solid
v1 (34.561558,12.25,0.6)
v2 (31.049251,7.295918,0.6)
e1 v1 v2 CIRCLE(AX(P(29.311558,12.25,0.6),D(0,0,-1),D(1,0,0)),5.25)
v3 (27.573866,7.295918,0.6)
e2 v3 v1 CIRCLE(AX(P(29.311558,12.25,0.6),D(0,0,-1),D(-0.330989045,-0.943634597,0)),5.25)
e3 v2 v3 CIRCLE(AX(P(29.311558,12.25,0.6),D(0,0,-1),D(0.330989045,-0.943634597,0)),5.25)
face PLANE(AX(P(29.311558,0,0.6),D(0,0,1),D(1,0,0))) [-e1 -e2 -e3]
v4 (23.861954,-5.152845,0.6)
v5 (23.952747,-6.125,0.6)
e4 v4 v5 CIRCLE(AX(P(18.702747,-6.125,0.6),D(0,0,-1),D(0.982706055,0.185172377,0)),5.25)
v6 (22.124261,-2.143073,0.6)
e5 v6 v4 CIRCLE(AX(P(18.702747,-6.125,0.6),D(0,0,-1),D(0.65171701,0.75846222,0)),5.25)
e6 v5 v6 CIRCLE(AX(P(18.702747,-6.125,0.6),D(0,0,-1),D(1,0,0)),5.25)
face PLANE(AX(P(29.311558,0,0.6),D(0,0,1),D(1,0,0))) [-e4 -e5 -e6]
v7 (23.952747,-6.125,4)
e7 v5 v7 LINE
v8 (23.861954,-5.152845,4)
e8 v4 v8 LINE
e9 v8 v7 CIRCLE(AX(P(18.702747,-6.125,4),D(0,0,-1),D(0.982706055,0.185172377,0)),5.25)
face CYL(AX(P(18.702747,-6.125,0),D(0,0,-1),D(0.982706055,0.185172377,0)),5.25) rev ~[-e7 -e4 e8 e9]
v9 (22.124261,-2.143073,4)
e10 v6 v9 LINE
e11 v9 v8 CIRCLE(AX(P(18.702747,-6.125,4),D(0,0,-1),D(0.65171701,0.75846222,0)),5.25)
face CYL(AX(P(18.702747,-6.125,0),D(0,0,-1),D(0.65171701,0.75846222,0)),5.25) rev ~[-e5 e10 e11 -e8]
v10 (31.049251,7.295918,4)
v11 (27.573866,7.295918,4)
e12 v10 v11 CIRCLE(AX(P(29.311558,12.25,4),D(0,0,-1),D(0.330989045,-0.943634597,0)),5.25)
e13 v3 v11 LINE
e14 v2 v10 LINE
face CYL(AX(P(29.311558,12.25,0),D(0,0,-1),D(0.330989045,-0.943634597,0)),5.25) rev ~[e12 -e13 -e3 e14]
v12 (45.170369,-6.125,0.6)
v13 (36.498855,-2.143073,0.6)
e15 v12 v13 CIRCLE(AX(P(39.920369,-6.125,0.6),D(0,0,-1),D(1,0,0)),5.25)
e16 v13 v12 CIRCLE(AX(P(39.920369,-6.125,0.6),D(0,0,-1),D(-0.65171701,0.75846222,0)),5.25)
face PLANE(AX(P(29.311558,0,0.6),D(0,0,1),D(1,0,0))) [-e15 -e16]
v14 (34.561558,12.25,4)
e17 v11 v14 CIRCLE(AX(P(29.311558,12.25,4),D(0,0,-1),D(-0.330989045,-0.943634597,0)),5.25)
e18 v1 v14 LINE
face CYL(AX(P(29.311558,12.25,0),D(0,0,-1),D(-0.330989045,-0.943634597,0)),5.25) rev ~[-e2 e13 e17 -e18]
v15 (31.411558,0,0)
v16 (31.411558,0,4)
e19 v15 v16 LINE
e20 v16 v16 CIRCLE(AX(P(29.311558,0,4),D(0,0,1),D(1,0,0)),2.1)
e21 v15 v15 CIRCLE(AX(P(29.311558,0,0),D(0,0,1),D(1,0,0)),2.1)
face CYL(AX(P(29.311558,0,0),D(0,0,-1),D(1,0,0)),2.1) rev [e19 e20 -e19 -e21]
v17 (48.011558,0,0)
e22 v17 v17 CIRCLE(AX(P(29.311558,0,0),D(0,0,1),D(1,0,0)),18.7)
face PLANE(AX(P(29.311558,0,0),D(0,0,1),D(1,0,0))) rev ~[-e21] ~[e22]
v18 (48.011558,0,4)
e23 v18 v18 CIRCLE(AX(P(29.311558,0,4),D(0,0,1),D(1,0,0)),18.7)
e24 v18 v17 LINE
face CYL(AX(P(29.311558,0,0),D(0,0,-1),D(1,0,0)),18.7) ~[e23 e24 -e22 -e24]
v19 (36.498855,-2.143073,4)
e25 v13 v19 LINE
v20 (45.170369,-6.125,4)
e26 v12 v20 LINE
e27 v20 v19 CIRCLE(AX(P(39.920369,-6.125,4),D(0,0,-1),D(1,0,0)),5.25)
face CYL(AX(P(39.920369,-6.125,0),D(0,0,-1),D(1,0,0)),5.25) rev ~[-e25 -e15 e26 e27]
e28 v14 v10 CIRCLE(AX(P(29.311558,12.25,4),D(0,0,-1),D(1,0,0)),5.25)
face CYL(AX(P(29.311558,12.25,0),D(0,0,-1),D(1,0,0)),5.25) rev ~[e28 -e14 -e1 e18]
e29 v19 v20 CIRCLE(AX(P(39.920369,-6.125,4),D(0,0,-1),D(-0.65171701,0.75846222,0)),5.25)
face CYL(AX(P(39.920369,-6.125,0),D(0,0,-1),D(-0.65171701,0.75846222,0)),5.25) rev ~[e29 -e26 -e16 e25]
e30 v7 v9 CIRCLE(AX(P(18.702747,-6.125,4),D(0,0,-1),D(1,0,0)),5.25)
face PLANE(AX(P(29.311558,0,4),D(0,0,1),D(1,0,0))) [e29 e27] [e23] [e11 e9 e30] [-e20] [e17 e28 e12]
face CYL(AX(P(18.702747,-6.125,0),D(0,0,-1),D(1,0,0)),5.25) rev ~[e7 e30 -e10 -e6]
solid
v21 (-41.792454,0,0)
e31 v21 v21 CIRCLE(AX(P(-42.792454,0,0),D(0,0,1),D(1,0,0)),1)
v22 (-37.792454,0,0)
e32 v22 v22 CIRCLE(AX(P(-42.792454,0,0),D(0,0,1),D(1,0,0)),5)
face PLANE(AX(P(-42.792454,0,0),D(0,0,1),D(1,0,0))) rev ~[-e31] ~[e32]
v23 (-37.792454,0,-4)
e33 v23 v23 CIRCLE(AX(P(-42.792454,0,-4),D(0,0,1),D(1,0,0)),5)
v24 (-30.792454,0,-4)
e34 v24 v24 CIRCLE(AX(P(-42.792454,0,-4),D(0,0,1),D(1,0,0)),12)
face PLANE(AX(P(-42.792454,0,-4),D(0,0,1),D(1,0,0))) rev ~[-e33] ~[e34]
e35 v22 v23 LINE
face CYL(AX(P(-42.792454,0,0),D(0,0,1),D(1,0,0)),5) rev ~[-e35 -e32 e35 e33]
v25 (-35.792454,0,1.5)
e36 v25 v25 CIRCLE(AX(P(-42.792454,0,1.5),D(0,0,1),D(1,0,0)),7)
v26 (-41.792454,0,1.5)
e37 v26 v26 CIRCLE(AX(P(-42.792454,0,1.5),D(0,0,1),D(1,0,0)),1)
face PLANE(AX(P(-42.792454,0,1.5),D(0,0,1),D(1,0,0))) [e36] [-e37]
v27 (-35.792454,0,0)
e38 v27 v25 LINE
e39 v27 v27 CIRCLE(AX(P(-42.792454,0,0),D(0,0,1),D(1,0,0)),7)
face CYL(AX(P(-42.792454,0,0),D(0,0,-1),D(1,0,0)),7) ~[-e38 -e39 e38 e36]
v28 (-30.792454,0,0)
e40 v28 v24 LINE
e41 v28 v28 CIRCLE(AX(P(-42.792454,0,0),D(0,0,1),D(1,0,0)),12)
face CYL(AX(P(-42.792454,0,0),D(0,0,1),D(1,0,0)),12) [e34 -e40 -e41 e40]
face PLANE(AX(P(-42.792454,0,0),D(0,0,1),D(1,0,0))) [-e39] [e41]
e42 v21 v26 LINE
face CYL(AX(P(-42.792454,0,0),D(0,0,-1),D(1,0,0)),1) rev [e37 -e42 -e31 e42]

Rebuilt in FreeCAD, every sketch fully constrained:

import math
import FreeCAD as App
import Part
import Sketcher
from FreeCAD import Vector
Q = App.Units.Quantity

doc = App.newDocument("Part")
body = doc.addObject("PartDesign::Body", "Body")

# Sketch on XY plane
sketch1 = body.newObject("Sketcher::SketchObject", "Sketch")
sketch1.AttachmentSupport = (doc.getObject("XY_Plane"), [""])
sketch1.MapMode = "FlatFace"
sketch1.addGeometry([
    Part.Circle(Vector(-43, 0, 0), Vector(0, 0, 1), 12),
    Part.Circle(Vector(-43, 0, 0), Vector(0, 0, 1), 5),
], False)
sketch1.addConstraint([
    Sketcher.Constraint("Coincident", 1, 3, 0, 3),
    Sketcher.Constraint("PointOnObject", 0, 3, -1),
    Sketcher.Constraint("Diameter", 0, Q("24 mm")),
    Sketcher.Constraint("Diameter", 1, Q("10 mm")),
    Sketcher.Constraint("DistanceX", 0, 3, -1, 1, Q("42.792454 mm")),
])
pad1 = body.newObject("PartDesign::Pad", "Pad")
pad1.Profile = sketch1
pad1.Length = 4
pad1.Reversed = True

# Sketch on XY plane
sketch2 = body.newObject("Sketcher::SketchObject", "Sketch001")
sketch2.AttachmentSupport = (doc.getObject("XY_Plane"), [""])
sketch2.MapMode = "FlatFace"
sketch2.addGeometry([
    Part.Circle(Vector(-42.8, 0, 0), Vector(0, 0, 1), 7),
    Part.Circle(Vector(-42.8, 0, 0), Vector(0, 0, 1), 1),
], False)
sketch2.addConstraint([
    Sketcher.Constraint("Coincident", 1, 3, 0, 3),
    Sketcher.Constraint("PointOnObject", 0, 3, -1),
    Sketcher.Constraint("Diameter", 0, Q("14 mm")),
    Sketcher.Constraint("Diameter", 1, Q("2 mm")),
    Sketcher.Constraint("DistanceX", 0, 3, -1, 1, Q("42.792454 mm")),
])
pad2 = body.newObject("PartDesign::Pad", "Pad001")
pad2.Profile = sketch2
pad2.Length = 1.5
body2 = doc.addObject("PartDesign::Body", "Body001")

# Sketch on XY plane
sketch3 = body2.newObject("Sketcher::SketchObject", "Sketch002")
sketch3.AttachmentSupport = (doc.getObject("XY_Plane001"), [""])
sketch3.MapMode = "FlatFace"
sketch3.addGeometry([
    Part.Circle(Vector(29.3, 0, 0), Vector(0, 0, 1), 18.7),
    Part.Circle(Vector(29.3, 0, 0), Vector(0, 0, 1), 2.1),
], False)
sketch3.addConstraint([
    Sketcher.Constraint("Coincident", 1, 3, 0, 3),
    Sketcher.Constraint("PointOnObject", 0, 3, -1),
    Sketcher.Constraint("Diameter", 0, Q("37.4 mm")),
    Sketcher.Constraint("Diameter", 1, Q("4.2 mm")),
    Sketcher.Constraint("DistanceX", -1, 1, 0, 3, Q("29.311558 mm")),
])
pad3 = body2.newObject("PartDesign::Pad", "Pad002")
pad3.Profile = sketch3
pad3.Length = 0.6

# Sketch on XY plane
sketch4 = body2.newObject("Sketcher::SketchObject", "Sketch003")
sketch4.AttachmentSupport = (doc.getObject("XY_Plane001"), [""])
sketch4.MapMode = "FlatFace"
sketch4.addGeometry([
    Part.Circle(Vector(29.3, 0, 0), Vector(0, 0, 1), 18.7),  # 0
    Part.ArcOfCircle(Part.Circle(Vector(18.7, -6.1, 0), Vector(0, 0, 1), 5.2), math.radians(49), math.radians(360)),  # 1
    Part.ArcOfCircle(Part.Circle(Vector(18.7, -6.1, 0), Vector(0, 0, 1), 5.2), math.radians(11), math.radians(49)),  # 2
    Part.ArcOfCircle(Part.Circle(Vector(18.7, -6.1, 0), Vector(0, 0, 1), 5.3), math.radians(0), math.radians(10.67)),  # 3
    Part.Circle(Vector(29.3, 0, 0), Vector(0, 0, 1), 2.1),  # 4
    Part.ArcOfCircle(Part.Circle(Vector(39.9, -6.1, 0), Vector(0, 0, 1), 5.2), math.radians(131), math.radians(360)),  # 5
    Part.ArcOfCircle(Part.Circle(Vector(39.9, -6.1, 0), Vector(0, 0, 1), 5.2), math.radians(0), math.radians(131)),  # 6
    Part.ArcOfCircle(Part.Circle(Vector(29.3, 12.2, 0), Vector(0, 0, 1), 5.2), math.radians(-71), math.radians(0)),  # 7
    Part.ArcOfCircle(Part.Circle(Vector(29.3, 12.3, 0), Vector(0, 0, 1), 5.3), math.radians(-109), math.radians(-71)),  # 8
    Part.ArcOfCircle(Part.Circle(Vector(29.3, 12.2, 0), Vector(0, 0, 1), 5.2), math.radians(0), math.radians(251)),  # 9
], False)
sketch4.addConstraint([
    Sketcher.Constraint("Tangent", 1, 1, 2, 2),
    Sketcher.Constraint("Tangent", 2, 1, 3, 2),
    Sketcher.Constraint("Tangent", 3, 1, 1, 2),
    Sketcher.Constraint("Tangent", 5, 1, 6, 2),
    Sketcher.Constraint("Coincident", 6, 1, 5, 2),
    Sketcher.Constraint("Tangent", 7, 1, 8, 2),
    Sketcher.Constraint("Tangent", 8, 1, 9, 2),
    Sketcher.Constraint("Tangent", 9, 1, 7, 2),
    Sketcher.Constraint("Coincident", 4, 3, 0, 3),
    Sketcher.Constraint("Equal", 3, 5),
    Sketcher.Constraint("Equal", 6, 7),
    Sketcher.Constraint("PointOnObject", 0, 3, -1),
    Sketcher.Constraint("Horizontal", 3, 3, 5, 3),
    Sketcher.Constraint("Horizontal", 6, 3, 3, 1),
    Sketcher.Constraint("Horizontal", 1, 1, 5, 1),
    Sketcher.Constraint("Horizontal", 3, 1, 6, 1),
    Sketcher.Constraint("Horizontal", 7, 1, 8, 1),
    Sketcher.Constraint("Horizontal", 8, 3, 9, 1),
    Sketcher.Constraint("Vertical", 4, 3, 7, 3),
    Sketcher.Constraint("Diameter", 0, Q("37.4 mm")),
    Sketcher.Constraint("Diameter", 4, Q("4.2 mm")),
    Sketcher.Constraint("Radius", 1, Q("5.25 mm")),
    Sketcher.Constraint("DistanceY", -1, 1, 7, 3, Q("12.25 mm")),
    Sketcher.Constraint("DistanceY", 1, 3, -1, 1, Q("6.125 mm")),
    Sketcher.Constraint("DistanceX", 2, 1, 5, 1, Q("12.636901 mm")),
    Sketcher.Constraint("DistanceX", -1, 1, 0, 3, Q("29.311558 mm")),
    Sketcher.Constraint("DistanceX", -1, 1, 5, 3, Q("39.920369 mm")),
    Sketcher.Constraint("DistanceX", -1, 1, 1, 1, Q("22.124261 mm")),
    Sketcher.Constraint("DistanceX", -1, 1, 7, 1, Q("31.049251 mm")),
    Sketcher.Constraint("DistanceX", 1, 3, 0, 3, Q("10.608811 mm")),
])
pad4 = body2.newObject("PartDesign::Pad", "Pad003")
pad4.Profile = sketch4
pad4.Length = 4

doc.recompute()
